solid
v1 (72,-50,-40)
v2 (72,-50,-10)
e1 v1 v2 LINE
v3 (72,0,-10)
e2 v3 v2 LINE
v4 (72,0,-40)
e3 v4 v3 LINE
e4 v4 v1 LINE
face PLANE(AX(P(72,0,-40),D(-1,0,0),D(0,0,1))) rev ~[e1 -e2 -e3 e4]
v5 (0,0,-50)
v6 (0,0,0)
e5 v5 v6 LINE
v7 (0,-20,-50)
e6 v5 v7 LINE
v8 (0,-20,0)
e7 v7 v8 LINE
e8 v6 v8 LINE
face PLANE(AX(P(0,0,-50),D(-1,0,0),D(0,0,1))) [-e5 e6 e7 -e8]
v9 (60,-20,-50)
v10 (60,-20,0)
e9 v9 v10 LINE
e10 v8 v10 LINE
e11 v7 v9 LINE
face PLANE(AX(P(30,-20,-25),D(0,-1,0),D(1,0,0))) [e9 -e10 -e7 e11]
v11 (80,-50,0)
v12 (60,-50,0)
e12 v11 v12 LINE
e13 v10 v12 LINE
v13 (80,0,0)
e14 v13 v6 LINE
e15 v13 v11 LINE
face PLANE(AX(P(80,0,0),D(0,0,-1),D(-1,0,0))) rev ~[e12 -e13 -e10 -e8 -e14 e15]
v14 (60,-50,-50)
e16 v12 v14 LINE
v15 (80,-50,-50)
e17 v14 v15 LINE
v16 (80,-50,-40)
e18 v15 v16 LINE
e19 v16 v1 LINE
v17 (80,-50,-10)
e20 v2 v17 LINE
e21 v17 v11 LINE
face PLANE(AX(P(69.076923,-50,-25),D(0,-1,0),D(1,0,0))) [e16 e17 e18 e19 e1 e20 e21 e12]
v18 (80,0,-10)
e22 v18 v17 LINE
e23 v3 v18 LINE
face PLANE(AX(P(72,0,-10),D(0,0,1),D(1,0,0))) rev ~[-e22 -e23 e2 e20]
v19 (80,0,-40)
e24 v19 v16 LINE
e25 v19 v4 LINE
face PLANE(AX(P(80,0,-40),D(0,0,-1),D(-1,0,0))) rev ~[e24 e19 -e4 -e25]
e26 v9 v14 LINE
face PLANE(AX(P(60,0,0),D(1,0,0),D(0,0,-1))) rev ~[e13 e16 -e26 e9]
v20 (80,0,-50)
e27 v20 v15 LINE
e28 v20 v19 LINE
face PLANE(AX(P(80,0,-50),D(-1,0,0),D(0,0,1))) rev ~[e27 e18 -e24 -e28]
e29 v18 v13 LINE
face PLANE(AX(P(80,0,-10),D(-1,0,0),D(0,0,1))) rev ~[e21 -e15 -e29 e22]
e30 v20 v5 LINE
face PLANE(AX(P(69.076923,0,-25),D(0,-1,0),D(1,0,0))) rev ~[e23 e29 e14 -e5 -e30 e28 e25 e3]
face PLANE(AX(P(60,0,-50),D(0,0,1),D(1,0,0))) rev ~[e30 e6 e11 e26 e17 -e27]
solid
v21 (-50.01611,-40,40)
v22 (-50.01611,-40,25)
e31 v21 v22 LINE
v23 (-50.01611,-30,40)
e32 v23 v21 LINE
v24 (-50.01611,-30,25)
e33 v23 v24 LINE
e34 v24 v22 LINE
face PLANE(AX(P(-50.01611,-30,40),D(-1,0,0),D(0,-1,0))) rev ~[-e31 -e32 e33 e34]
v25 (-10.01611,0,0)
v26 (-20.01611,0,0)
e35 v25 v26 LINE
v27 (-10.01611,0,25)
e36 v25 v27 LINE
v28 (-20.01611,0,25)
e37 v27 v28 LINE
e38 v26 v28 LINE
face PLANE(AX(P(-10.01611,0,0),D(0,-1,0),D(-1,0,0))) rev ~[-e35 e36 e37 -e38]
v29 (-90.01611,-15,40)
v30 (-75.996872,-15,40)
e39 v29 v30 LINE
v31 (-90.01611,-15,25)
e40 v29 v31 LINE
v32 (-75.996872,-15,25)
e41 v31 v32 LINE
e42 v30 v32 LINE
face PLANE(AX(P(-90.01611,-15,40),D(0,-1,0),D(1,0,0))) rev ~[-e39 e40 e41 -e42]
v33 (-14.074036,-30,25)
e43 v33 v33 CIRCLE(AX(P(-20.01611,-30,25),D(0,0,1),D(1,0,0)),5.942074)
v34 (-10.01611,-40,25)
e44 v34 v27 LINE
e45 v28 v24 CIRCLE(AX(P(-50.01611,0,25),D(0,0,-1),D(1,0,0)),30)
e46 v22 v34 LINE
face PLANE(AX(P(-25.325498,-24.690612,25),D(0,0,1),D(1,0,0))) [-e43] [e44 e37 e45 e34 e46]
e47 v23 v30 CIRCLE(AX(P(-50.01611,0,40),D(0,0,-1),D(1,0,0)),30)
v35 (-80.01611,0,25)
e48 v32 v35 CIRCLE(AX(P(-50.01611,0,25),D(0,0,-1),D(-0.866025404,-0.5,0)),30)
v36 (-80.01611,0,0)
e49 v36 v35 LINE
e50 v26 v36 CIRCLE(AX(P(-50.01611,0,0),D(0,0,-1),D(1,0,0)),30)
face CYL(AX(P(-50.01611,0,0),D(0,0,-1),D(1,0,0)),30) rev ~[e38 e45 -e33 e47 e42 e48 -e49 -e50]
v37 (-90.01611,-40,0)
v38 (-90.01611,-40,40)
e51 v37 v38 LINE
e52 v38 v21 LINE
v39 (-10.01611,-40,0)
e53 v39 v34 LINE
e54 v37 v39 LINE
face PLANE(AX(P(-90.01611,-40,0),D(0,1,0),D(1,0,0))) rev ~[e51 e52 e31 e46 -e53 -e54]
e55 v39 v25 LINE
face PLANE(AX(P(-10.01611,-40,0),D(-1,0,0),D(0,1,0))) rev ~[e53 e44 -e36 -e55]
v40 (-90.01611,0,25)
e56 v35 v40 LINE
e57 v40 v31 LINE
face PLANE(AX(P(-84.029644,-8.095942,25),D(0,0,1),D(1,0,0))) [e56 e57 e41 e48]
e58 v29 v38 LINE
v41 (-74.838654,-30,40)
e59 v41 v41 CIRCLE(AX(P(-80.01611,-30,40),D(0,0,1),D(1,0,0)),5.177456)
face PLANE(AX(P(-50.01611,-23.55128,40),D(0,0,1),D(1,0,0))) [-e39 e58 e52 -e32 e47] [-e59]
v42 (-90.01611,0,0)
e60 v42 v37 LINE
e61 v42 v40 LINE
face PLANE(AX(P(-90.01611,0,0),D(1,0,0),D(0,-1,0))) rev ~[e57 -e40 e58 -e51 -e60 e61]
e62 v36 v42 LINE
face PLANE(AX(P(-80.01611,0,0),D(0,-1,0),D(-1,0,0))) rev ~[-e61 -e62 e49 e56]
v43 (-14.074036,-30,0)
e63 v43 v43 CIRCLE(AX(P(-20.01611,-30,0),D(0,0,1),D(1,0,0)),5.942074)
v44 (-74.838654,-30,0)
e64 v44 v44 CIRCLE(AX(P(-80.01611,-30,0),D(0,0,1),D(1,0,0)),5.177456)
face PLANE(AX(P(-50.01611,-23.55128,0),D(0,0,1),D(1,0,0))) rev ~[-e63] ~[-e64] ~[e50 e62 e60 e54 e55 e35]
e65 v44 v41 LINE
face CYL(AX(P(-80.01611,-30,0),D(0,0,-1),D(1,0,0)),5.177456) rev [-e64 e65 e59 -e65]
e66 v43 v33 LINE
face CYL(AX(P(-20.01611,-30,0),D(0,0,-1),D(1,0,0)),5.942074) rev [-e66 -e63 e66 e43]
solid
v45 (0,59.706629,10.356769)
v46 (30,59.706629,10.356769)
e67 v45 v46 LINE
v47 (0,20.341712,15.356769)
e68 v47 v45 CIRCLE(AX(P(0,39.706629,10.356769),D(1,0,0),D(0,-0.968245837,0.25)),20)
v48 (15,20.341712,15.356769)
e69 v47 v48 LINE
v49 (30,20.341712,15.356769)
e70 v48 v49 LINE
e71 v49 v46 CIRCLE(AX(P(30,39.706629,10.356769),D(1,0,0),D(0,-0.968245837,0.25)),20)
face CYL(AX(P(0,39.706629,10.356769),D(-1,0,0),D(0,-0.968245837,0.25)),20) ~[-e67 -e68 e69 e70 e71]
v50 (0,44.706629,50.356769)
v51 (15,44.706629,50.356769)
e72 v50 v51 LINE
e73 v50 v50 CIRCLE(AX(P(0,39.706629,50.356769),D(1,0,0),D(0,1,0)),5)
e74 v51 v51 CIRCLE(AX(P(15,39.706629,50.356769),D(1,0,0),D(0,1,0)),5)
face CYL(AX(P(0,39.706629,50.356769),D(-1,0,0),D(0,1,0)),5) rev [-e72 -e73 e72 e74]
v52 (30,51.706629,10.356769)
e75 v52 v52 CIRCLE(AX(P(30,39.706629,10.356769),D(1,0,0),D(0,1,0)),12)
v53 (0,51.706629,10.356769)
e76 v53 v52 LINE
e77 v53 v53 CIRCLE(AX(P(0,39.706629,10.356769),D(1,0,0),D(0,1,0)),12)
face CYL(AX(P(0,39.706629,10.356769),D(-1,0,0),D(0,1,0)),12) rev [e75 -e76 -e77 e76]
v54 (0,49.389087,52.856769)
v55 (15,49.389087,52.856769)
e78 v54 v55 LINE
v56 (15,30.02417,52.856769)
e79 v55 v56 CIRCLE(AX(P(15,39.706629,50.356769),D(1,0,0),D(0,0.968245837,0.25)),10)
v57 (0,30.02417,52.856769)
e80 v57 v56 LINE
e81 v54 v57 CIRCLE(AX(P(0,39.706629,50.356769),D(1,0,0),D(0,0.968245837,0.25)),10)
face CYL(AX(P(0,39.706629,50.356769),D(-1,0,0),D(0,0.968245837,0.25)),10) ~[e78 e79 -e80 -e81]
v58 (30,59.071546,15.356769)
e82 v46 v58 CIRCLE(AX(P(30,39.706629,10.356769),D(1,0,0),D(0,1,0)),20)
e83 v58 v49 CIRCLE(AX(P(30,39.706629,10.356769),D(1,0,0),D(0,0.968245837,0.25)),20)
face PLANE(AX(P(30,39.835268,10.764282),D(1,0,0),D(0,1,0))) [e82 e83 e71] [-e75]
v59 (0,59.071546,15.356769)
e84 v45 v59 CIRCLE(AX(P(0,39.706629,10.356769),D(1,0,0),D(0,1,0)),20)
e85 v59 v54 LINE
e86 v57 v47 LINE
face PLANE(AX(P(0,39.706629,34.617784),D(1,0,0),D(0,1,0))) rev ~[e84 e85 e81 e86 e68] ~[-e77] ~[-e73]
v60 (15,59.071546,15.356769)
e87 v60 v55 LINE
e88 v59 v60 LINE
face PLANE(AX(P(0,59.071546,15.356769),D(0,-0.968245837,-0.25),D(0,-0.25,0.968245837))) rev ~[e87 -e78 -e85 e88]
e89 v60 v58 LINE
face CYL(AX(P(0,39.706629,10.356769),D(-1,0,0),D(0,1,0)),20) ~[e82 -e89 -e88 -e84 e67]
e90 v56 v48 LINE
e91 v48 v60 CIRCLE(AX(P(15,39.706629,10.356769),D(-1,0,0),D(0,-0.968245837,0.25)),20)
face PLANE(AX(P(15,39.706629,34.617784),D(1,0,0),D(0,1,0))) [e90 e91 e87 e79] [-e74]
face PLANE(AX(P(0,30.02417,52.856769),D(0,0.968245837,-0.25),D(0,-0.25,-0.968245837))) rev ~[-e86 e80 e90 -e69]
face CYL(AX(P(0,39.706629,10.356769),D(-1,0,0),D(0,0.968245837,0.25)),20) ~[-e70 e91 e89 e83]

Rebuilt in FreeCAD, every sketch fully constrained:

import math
import FreeCAD as App
import Part
import Sketcher


def add_polygon(sketch, points):
    """Adds a closed chain of lines whose ends are joined by coincident constraints."""
    first, n = sketch.GeometryCount, len(points)
    for a, b in zip(points, points[1:] + points[:1]):
        sketch.addGeometry(Part.LineSegment(App.Vector(*a, 0), App.Vector(*b, 0)), False)
    for i in range(n):
        sketch.addConstraint(Sketcher.Constraint("Coincident", first + i, 2, first + (i + 1) % n, 1))

doc = App.newDocument("Part")
body = doc.addObject("PartDesign::Body", "Body")

# Sketch on XZ plane
sketch1 = body.newObject("Sketcher::SketchObject", "Sketch")
sketch1.AttachmentSupport = (doc.getObject("XZ_Plane"), [""])
sketch1.MapMode = "FlatFace"
add_polygon(sketch1, [(0, 0), (0, -50), (60, -50), (60, 0)])  # lines 0-3
sketch1.addConstraint([
    Sketcher.Constraint("Vertical", 0),
    Sketcher.Constraint("Horizontal", 1),
    Sketcher.Constraint("Vertical", 2),
    Sketcher.Constraint("Horizontal", 3),
    Sketcher.Constraint("Coincident", 3, 2, -1, 1),
    Sketcher.Constraint("DistanceX", 1, 1, 1, 2, 60.0),
    Sketcher.Constraint("DistanceY", 0, 2, 0, 1, 50.0),
])
pad1 = body.newObject("PartDesign::Pad", "Pad")
pad1.Profile = sketch1
pad1.Length = 20

# Sketch on XZ plane
sketch2 = body.newObject("Sketcher::SketchObject", "Sketch001")
sketch2.AttachmentSupport = (doc.getObject("XZ_Plane"), [""])
sketch2.MapMode = "FlatFace"
add_polygon(sketch2, [(80, 0), (60, 0), (60, -50), (80, -50), (80, -40), (72, -40), (72, -10), (80, -10)])  # lines 0-7
sketch2.addConstraint([
    Sketcher.Constraint("Horizontal", 0),
    Sketcher.Constraint("Vertical", 1),
    Sketcher.Constraint("Horizontal", 2),
    Sketcher.Constraint("Vertical", 3),
    Sketcher.Constraint("Horizontal", 4),
    Sketcher.Constraint("Vertical", 5),
    Sketcher.Constraint("Horizontal", 6),
    Sketcher.Constraint("Vertical", 7),
    Sketcher.Constraint("PointOnObject", 0, 2, -1),
    Sketcher.Constraint("Vertical", 3, 2, 6, 2),
    Sketcher.Constraint("Equal", 3, 7),
    Sketcher.Constraint("DistanceX", 0, 2, 0, 1, 20.0),
    Sketcher.Constraint("DistanceX", 4, 2, 4, 1, 8.0),
    Sketcher.Constraint("DistanceY", 1, 2, 1, 1, 50.0),
    Sketcher.Constraint("DistanceY", 3, 1, 3, 2, 10.0),
    Sketcher.Constraint("DistanceX", -1, 1, 0, 2, 60.0),
])
pad2 = body.newObject("PartDesign::Pad", "Pad001")
pad2.Profile = sketch2
pad2.Length = 50
body2 = doc.addObject("PartDesign::Body", "Body001")

# Sketch on YZ plane
sketch3 = body2.newObject("Sketcher::SketchObject", "Sketch002")
sketch3.AttachmentSupport = (doc.getObject("YZ_Plane001"), [""])
sketch3.MapMode = "FlatFace"
sketch3.addGeometry([
    Part.ArcOfCircle(Part.Circle(App.Vector(40, 10, 0), App.Vector(0, 0, 1), 20), math.radians(166), math.radians(360)),
    Part.ArcOfCircle(Part.Circle(App.Vector(40, 10, 0), App.Vector(0, 0, 1), 20), math.radians(0), math.radians(14.48)),
    Part.ArcOfCircle(Part.Circle(App.Vector(40, 10, 0), App.Vector(0, 0, 1), 20), math.radians(14), math.radians(166)),
    Part.Circle(App.Vector(40, 10, 0), App.Vector(0, 0, 1), 12),
], False)
sketch3.addConstraint([
    Sketcher.Constraint("Tangent", 0, 2, 1, 1),
    Sketcher.Constraint("Tangent", 1, 2, 2, 1),
    Sketcher.Constraint("Tangent", 2, 2, 0, 1),
    Sketcher.Constraint("Coincident", 3, 3, 0, 3),
    Sketcher.Constraint("Horizontal", 3, 3, 0, 2),
    Sketcher.Constraint("Horizontal", 1, 2, 2, 2),
    Sketcher.Constraint("Diameter", 3, 24.0),
    Sketcher.Constraint("Radius", 0, 20.0),
    Sketcher.Constraint("DistanceY", 0, 2, 1, 2, 5.0),
    Sketcher.Constraint("DistanceX", -1, 1, 0, 3, 39.706629),
    Sketcher.Constraint("DistanceY", -1, 1, 0, 3, 10.356769),
])
pad3 = body2.newObject("PartDesign::Pad", "Pad002")
pad3.Profile = sketch3
pad3.Length = 30

# Sketch on YZ plane
sketch4 = body2.newObject("Sketcher::SketchObject", "Sketch003")
sketch4.AttachmentSupport = (doc.getObject("YZ_Plane001"), [""])
sketch4.MapMode = "FlatFace"
sketch4.addGeometry([
    Part.ArcOfCircle(Part.Circle(App.Vector(40, 10, 0), App.Vector(0, 0, 1), 20), math.radians(14), math.radians(166)),  # 0
    Part.LineSegment(App.Vector(59, 15, 0), App.Vector(49, 53, 0)),  # 1
    Part.ArcOfCircle(Part.Circle(App.Vector(40, 50, 0), App.Vector(0, 0, 1), 10), math.radians(14), math.radians(166)),  # 2
    Part.LineSegment(App.Vector(30, 53, 0), App.Vector(20, 15, 0)),  # 3
    Part.Circle(App.Vector(40, 50, 0), App.Vector(0, 0, 1), 5),  # 4
], False)
sketch4.addConstraint([
    Sketcher.Constraint("Tangent", 0, 1, 1, 1),
    Sketcher.Constraint("Tangent", 1, 2, 2, 1),
    Sketcher.Constraint("Tangent", 2, 2, 3, 1),
    Sketcher.Constraint("Tangent", 3, 2, 0, 2),
    Sketcher.Constraint("Coincident", 4, 3, 2, 3),
    Sketcher.Constraint("Horizontal", 1, 2, 2, 2),
    Sketcher.Constraint("Diameter", 4, 10.0),
    Sketcher.Constraint("Radius", 0, 20.0),
    Sketcher.Constraint("Radius", 2, 10.0),
    Sketcher.Constraint("DistanceY", 0, 3, 2, 3, 40.0),
    Sketcher.Constraint("DistanceX", -1, 1, 0, 3, 39.706629),
    Sketcher.Constraint("DistanceY", -1, 1, 0, 3, 10.356769),
])
pad4 = body2.newObject("PartDesign::Pad", "Pad003")
pad4.Profile = sketch4
pad4.Length = 15
body3 = doc.addObject("PartDesign::Body", "Body002")

# Sketch on XY plane
sketch5 = body3.newObject("Sketcher::SketchObject", "Sketch004")
sketch5.AttachmentSupport = (doc.getObject("XY_Plane002"), [""])
sketch5.MapMode = "FlatFace"
sketch5.addGeometry([
    Part.LineSegment(App.Vector(-80, 0, 0), App.Vector(-90, 0, 0)),  # 0
    Part.LineSegment(App.Vector(-90, 0, 0), App.Vector(-90, -40, 0)),  # 1
    Part.LineSegment(App.Vector(-90, -40, 0), App.Vector(-10, -40, 0)),  # 2
    Part.LineSegment(App.Vector(-10, -40, 0), App.Vector(-10, 0, 0)),  # 3
    Part.LineSegment(App.Vector(-10, 0, 0), App.Vector(-20, 0, 0)),  # 4
    Part.ArcOfCircle(Part.Circle(App.Vector(-50, 0, 0), App.Vector(0, 0, 1), 30), math.radians(180), math.radians(360)),  # 5
    Part.Circle(App.Vector(-80, -30, 0), App.Vector(0, 0, 1), 5),  # 6
    Part.Circle(App.Vector(-20, -30, 0), App.Vector(0, 0, 1), 6),  # 7
], False)
sketch5.addConstraint([
    Sketcher.Constraint("Coincident", 0, 2, 1, 1),
    Sketcher.Constraint("Coincident", 1, 2, 2, 1),
    Sketcher.Constraint("Coincident", 2, 2, 3, 1),
    Sketcher.Constraint("Coincident", 3, 2, 4, 1),
    Sketcher.Constraint("Coincident", 4, 2, 5, 2),
    Sketcher.Constraint("Coincident", 5, 1, 0, 1),
    Sketcher.Constraint("Horizontal", 0),
    Sketcher.Constraint("Vertical", 1),
    Sketcher.Constraint("Horizontal", 2),
    Sketcher.Constraint("Vertical", 3),
    Sketcher.Constraint("Horizontal", 4),
    Sketcher.Constraint("PointOnObject", 5, 3, -1),
    Sketcher.Constraint("PointOnObject", 0, 2, -1),
    Sketcher.Constraint("PointOnObject", 3, 2, -1),
    Sketcher.Constraint("Horizontal", 6, 3, 7, 3),
    Sketcher.Constraint("Vertical", 7, 3, 4, 2),
    Sketcher.Constraint("Vertical", 6, 3, 5, 1),
    Sketcher.Constraint("Equal", 0, 4),
    Sketcher.Constraint("Radius", 5, 30.0),
    Sketcher.Constraint("DistanceX", 0, 2, 0, 1, 10.0),
    Sketcher.Constraint("DistanceY", 1, 2, 1, 1, 40.0),
    Sketcher.Constraint("DistanceY", 6, 3, -1, 1, 30.0),
    Sketcher.Constraint("Diameter", 6, 10.354912),
    Sketcher.Constraint("Diameter", 7, 11.884148),
    Sketcher.Constraint("DistanceX", 5, 3, -1, 1, 50.01611),
])
pad5 = body3.newObject("PartDesign::Pad", "Pad004")
pad5.Profile = sketch5
pad5.Length = 40

# Sketch on XY plane
sketch6 = body3.newObject("Sketcher::SketchObject", "Sketch005")
sketch6.AttachmentSupport = (doc.getObject("XY_Plane002"), [""])
sketch6.MapMode = "FlatFace"
sketch6.AttachmentOffset = App.Placement(App.Vector(0, 0, 40), App.Rotation())
sketch6.addGeometry([
    Part.LineSegment(App.Vector(-90, 0, 0), App.Vector(-90, -15, 0)),  # 0
    Part.LineSegment(App.Vector(-90, -15, 0), App.Vector(-76, -15, 0)),  # 1
    Part.ArcOfCircle(Part.Circle(App.Vector(-50, 0, 0), App.Vector(0, 0, 1), 30), math.radians(180), math.radians(210)),  # 2
    Part.LineSegment(App.Vector(-80, 0, 0), App.Vector(-90, 0, 0)),  # 3
    Part.ArcOfCircle(Part.Circle(App.Vector(-50, 0, 0), App.Vector(0, 0, 1), 30), math.radians(-90), math.radians(0)),  # 4
    Part.LineSegment(App.Vector(-50, -30, 0), App.Vector(-50, -40, 0)),  # 5
    Part.LineSegment(App.Vector(-50, -40, 0), App.Vector(-10, -40, 0)),  # 6
    Part.LineSegment(App.Vector(-10, -40, 0), App.Vector(-10, 0, 0)),  # 7
    Part.LineSegment(App.Vector(-10, 0, 0), App.Vector(-20, 0, 0)),  # 8
    Part.Circle(App.Vector(-20, -30, 0), App.Vector(0, 0, 1), 6),  # 9
], False)
sketch6.addConstraint([
    Sketcher.Constraint("Coincident", 0, 2, 1, 1),
    Sketcher.Constraint("Coincident", 1, 2, 2, 2),
    Sketcher.Constraint("Coincident", 2, 1, 3, 1),
    Sketcher.Constraint("Coincident", 3, 2, 0, 1),
    Sketcher.Constraint("Coincident", 4, 1, 5, 1),
    Sketcher.Constraint("Coincident", 5, 2, 6, 1),
    Sketcher.Constraint("Coincident", 6, 2, 7, 1),
    Sketcher.Constraint("Coincident", 7, 2, 8, 1),
    Sketcher.Constraint("Coincident", 8, 2, 4, 2),
    Sketcher.Constraint("Vertical", 0),
    Sketcher.Constraint("Horizontal", 1),
    Sketcher.Constraint("Horizontal", 3),
    Sketcher.Constraint("Vertical", 5),
    Sketcher.Constraint("Horizontal", 6),
    Sketcher.Constraint("Vertical", 7),
    Sketcher.Constraint("Horizontal", 8),
    Sketcher.Constraint("Coincident", 4, 3, 2, 3),
    Sketcher.Constraint("Equal", 2, 4),
    Sketcher.Constraint("PointOnObject", 2, 3, -1),
    Sketcher.Constraint("PointOnObject", 2, 1, -1),
    Sketcher.Constraint("PointOnObject", 7, 2, -1),
    Sketcher.Constraint("Horizontal", 9, 3, 4, 1),
    Sketcher.Constraint("Vertical", 2, 3, 4, 1),
    Sketcher.Constraint("Vertical", 9, 3, 8, 2),
    Sketcher.Constraint("Equal", 3, 8),
    Sketcher.Constraint("Equal", 8, 5),
    Sketcher.Constraint("Radius", 2, 30.0),
    Sketcher.Constraint("DistanceX", 3, 2, 3, 1, 10.0),
    Sketcher.Constraint("DistanceY", 0, 2, 0, 1, 15.0),
    Sketcher.Constraint("Diameter", 9, 11.884148),
    Sketcher.Constraint("DistanceX", 2, 3, -1, 1, 50.01611),
])
pocket1 = body3.newObject("PartDesign::Pocket", "Pocket")
pocket1.Profile = sketch6
pocket1.Length = 15

doc.recompute()
